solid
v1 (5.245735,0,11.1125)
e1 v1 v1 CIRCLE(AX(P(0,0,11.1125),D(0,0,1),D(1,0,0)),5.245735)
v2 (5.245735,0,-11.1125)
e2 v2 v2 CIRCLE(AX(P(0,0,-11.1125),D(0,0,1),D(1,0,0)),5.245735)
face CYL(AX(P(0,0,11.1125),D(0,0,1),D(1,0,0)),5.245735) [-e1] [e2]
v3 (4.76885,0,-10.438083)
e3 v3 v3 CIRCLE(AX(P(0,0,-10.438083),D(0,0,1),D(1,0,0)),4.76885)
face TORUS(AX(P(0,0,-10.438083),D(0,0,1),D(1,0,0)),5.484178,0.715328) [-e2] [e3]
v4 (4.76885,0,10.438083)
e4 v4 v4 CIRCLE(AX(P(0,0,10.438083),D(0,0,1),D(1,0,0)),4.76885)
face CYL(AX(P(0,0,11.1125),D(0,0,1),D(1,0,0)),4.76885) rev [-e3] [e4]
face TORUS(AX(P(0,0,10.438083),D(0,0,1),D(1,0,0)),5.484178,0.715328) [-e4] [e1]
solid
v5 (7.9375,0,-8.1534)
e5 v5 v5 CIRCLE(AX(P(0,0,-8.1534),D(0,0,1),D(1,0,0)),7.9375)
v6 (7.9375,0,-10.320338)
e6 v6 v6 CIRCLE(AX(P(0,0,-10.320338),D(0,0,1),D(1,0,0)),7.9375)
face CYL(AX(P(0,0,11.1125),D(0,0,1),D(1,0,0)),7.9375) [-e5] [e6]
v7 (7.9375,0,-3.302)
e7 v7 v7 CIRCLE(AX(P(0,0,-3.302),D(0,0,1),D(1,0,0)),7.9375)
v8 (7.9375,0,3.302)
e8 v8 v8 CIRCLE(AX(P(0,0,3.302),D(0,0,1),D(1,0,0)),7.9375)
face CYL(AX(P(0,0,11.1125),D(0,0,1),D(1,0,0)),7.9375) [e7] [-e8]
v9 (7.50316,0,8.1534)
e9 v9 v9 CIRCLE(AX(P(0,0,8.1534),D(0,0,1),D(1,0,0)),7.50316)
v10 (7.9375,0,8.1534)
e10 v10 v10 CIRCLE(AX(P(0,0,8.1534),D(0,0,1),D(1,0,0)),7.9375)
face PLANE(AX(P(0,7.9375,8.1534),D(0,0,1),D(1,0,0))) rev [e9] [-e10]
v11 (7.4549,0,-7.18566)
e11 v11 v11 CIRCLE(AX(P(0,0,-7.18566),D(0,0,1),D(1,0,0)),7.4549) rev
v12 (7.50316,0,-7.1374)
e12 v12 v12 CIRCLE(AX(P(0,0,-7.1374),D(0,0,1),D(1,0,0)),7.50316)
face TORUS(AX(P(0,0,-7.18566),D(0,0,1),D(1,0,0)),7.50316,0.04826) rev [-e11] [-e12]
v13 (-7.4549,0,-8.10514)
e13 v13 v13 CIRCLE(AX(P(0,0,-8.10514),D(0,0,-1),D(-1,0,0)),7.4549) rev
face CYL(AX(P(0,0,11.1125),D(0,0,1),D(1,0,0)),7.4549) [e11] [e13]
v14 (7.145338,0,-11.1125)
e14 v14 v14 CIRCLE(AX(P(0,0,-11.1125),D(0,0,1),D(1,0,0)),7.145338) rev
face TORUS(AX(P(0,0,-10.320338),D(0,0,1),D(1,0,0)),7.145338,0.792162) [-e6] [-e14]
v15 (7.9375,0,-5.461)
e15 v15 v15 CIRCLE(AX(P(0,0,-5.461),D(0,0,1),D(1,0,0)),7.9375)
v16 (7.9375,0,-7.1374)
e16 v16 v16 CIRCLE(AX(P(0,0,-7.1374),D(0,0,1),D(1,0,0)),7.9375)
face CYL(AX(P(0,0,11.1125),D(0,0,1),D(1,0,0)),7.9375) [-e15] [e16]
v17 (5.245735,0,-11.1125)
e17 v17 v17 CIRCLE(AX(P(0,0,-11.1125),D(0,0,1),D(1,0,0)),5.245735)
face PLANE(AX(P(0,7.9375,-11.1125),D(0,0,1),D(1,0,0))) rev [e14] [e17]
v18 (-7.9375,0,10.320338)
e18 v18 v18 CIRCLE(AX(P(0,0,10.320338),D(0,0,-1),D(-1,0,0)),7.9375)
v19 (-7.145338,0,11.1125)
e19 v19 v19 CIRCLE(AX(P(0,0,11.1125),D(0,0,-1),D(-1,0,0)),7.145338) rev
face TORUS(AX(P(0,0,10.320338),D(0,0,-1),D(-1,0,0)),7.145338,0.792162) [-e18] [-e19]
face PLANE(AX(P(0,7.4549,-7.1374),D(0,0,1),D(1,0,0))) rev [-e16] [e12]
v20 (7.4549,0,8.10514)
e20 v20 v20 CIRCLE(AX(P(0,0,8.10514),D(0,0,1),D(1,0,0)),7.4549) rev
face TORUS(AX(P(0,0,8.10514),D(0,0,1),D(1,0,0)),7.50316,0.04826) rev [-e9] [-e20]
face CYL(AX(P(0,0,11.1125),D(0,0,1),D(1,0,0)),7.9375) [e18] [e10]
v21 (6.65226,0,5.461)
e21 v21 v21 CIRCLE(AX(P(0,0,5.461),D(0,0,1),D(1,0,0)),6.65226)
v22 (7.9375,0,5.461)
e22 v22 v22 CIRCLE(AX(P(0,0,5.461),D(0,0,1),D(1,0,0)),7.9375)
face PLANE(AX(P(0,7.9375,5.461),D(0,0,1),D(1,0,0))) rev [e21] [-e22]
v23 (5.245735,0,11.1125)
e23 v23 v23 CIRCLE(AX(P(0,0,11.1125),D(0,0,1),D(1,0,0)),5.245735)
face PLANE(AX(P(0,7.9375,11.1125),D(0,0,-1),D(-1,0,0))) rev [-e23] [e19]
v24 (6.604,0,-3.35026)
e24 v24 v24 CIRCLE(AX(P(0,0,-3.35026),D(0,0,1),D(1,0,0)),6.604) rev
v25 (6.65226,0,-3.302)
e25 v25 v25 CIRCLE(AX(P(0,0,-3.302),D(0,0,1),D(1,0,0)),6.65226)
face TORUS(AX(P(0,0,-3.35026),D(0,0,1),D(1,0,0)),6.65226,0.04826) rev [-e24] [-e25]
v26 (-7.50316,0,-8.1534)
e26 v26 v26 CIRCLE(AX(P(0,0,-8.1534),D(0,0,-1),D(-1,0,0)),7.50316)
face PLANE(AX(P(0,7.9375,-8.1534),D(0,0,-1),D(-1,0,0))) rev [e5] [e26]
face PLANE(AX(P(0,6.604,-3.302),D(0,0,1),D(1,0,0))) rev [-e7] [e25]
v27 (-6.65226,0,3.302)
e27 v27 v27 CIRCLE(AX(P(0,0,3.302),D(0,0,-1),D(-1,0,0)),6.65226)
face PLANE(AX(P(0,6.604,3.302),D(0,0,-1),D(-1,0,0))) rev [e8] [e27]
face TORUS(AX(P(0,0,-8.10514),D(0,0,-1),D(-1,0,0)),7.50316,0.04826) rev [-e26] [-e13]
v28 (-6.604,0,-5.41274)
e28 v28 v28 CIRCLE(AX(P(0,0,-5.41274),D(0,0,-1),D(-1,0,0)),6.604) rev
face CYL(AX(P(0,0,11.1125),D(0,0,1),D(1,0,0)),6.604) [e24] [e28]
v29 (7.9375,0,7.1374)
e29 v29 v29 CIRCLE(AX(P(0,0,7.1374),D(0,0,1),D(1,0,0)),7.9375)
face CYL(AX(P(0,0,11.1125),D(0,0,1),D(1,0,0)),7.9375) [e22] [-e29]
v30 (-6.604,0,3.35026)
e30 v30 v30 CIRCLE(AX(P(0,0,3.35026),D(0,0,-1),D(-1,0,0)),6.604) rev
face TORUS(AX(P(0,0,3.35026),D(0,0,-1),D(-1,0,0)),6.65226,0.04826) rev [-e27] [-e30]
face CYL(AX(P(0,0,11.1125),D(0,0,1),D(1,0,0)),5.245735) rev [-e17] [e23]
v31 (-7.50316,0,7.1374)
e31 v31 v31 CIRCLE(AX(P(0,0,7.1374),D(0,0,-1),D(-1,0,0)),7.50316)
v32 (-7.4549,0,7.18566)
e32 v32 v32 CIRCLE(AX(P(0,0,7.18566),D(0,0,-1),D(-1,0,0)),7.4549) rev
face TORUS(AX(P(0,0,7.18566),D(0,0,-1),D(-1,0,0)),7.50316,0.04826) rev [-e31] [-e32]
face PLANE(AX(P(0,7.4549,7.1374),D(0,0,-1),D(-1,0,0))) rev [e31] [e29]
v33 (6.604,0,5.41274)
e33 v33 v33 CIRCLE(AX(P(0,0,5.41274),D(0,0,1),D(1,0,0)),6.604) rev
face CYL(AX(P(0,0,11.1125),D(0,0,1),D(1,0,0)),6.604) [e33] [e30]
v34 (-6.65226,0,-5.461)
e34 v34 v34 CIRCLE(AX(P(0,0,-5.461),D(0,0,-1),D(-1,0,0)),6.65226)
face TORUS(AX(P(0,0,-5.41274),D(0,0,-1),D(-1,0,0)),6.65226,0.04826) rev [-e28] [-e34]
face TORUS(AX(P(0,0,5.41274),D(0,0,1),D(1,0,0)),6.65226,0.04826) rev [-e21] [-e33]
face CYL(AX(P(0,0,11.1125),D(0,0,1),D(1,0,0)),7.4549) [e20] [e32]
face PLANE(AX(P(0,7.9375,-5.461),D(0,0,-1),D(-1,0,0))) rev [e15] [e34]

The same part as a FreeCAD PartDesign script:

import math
import FreeCAD as App
import Part
import Sketcher
from FreeCAD import Vector
Q = App.Units.Quantity


def edges_at(feature, points):
    """Names of the edges that pass closest to the given points."""
    edges = feature.Shape.Edges
    near = lambda p: min(range(len(edges)), key=lambda i: edges[i].distToShape(Part.Vertex(*p))[0])
    return sorted({f"Edge{near(p) + 1}" for p in points})


def add_polygon(sketch, points):
    """Adds a closed chain of lines whose ends are joined by coincident constraints."""
    first, n = sketch.GeometryCount, len(points)
    for a, b in zip(points, points[1:] + points[:1]):
        sketch.addGeometry(Part.LineSegment(App.Vector(*a, 0), App.Vector(*b, 0)), False)
    for i in range(n):
        sketch.addConstraint(Sketcher.Constraint("Coincident", first + i, 2, first + (i + 1) % n, 1))

doc = App.newDocument("Part")
body = doc.addObject("PartDesign::Body", "Body")

# Sketch on YZ plane
sketch1 = body.newObject("Sketcher::SketchObject", "Sketch")
sketch1.AttachmentSupport = (doc.getObject("YZ_Plane"), [""])
sketch1.MapMode = "FlatFace"
add_polygon(sketch1, [(7.94, 8.15), (7.94, 11.11), (5.25, 11.11), (5.25, -11.11), (7.94, -11.11), (7.94, -8.15), (7.45, -8.15), (7.45, -7.14), (7.94, -7.14), (7.94, -5.46), (6.6, -5.46), (6.6, -3.3), (7.94, -3.3), (7.94, 3.3), (6.6, 3.3), (6.6, 5.46), (7.94, 5.46), (7.94, 7.14), (7.45, 7.14), (7.45, 8.15)])  # lines 0-19
sketch1.addConstraint([
    Sketcher.Constraint("Vertical", 0),
    Sketcher.Constraint("Horizontal", 1),
    Sketcher.Constraint("Vertical", 2),
    Sketcher.Constraint("Horizontal", 3),
    Sketcher.Constraint("Vertical", 4),
    Sketcher.Constraint("Horizontal", 5),
    Sketcher.Constraint("Vertical", 6),
    Sketcher.Constraint("Horizontal", 7),
    Sketcher.Constraint("Vertical", 8),
    Sketcher.Constraint("Horizontal", 9),
    Sketcher.Constraint("Vertical", 10),
    Sketcher.Constraint("Horizontal", 11),
    Sketcher.Constraint("Vertical", 12),
    Sketcher.Constraint("Horizontal", 13),
    Sketcher.Constraint("Vertical", 14),
    Sketcher.Constraint("Horizontal", 15),
    Sketcher.Constraint("Vertical", 16),
    Sketcher.Constraint("Horizontal", 17),
    Sketcher.Constraint("Vertical", 18),
    Sketcher.Constraint("Horizontal", 19),
    Sketcher.Constraint("Symmetric", 0, 2, 3, 2, -1),
    Sketcher.Constraint("Symmetric", 10, 2, 13, 2, -1),
    Sketcher.Constraint("Symmetric", 8, 2, 15, 2, -1),
    Sketcher.Constraint("Symmetric", 6, 2, 17, 2, -1),
    Sketcher.Constraint("Vertical", 4, 2, 7, 2),
    Sketcher.Constraint("Vertical", 8, 2, 11, 2),
    Sketcher.Constraint("Equal", 0, 4),
    Sketcher.Constraint("DistanceY", 6, 1, 6, 2, Q("0.04 in")),
    Sketcher.Constraint("DistanceY", 12, 1, 12, 2, Q("0.26 in")),
    Sketcher.Constraint("DistanceX", 5, 2, 5, 1, Q("0.019 in")),
    Sketcher.Constraint("DistanceY", 2, 2, 2, 1, Q("0.875 in")),
    Sketcher.Constraint("DistanceY", 8, 1, 8, 2, Q("0.066 in")),
    Sketcher.Constraint("DistanceY", 10, 1, 10, 2, Q("0.085 in")),
    Sketcher.Constraint("DistanceX", -1, 1, 9, 2, Q("0.26 in")),
    Sketcher.Constraint("DistanceX", 9, 2, 9, 1, Q("0.0525 in")),
    Sketcher.Constraint("DistanceX", 1, 2, 1, 1, 2.691765),
])
revolution = body.newObject("PartDesign::Revolution", "Revolution")
revolution.Profile = sketch1
revolution.ReferenceAxis = (sketch1, ["V_Axis"])
revolution.Angle = 360
doc.recompute()

fillet = body.newObject("PartDesign::Fillet", "Fillet")
fillet.Base = (revolution, edges_at(revolution, [(0, -7.938, 11.113), (0, -7.938, -11.113)]))
fillet.Radius = 0.792162
doc.recompute()

fillet2 = body.newObject("PartDesign::Fillet", "Fillet001")
fillet2.Base = (fillet, edges_at(fillet, [
    (0, -7.455, 8.153),
    (0, -7.455, 7.137),
    (0, -6.604, 5.461),
    (0, -6.604, 3.302),
    (0, -6.604, -3.302),
    (0, -6.604, -5.461),
    (0, -7.455, -7.137),
    (0, -7.455, -8.153),
]))
fillet2.Radius = Q("0.0019 in")
body2 = doc.addObject("PartDesign::Body", "Body001")

# Sketch on YZ plane
sketch2 = body2.newObject("Sketcher::SketchObject", "Sketch001")
sketch2.AttachmentSupport = (doc.getObject("YZ_Plane001"), [""])
sketch2.MapMode = "FlatFace"
sketch2.addGeometry([
    Part.LineSegment(Vector(4.8, 10.4, 0), Vector(4.8, -10.4, 0)),
    Part.ArcOfCircle(Part.Circle(Vector(5.5, -10.4, 0), Vector(0, 0, 1), 0.7), math.radians(180), math.radians(251)),
    Part.LineSegment(Vector(5.2, -11.1, 0), Vector(5.2, 11.1, 0)),
    Part.ArcOfCircle(Part.Circle(Vector(5.5, 10.4, 0), Vector(0, 0, 1), 0.7), math.radians(109), math.radians(180)),
], False)
sketch2.addConstraint([
    Sketcher.Constraint("Tangent", 0, 2, 1, 1),
    Sketcher.Constraint("Coincident", 1, 2, 2, 1),
    Sketcher.Constraint("Coincident", 2, 2, 3, 1),
    Sketcher.Constraint("Tangent", 3, 2, 0, 1),
    Sketcher.Constraint("Vertical", 0),
    Sketcher.Constraint("Vertical", 2),
    Sketcher.Constraint("Equal", 1, 3),
    Sketcher.Constraint("DistanceY", 2, 1, 2, 2, Q("0.875 in")),
    Sketcher.Constraint("DistanceY", 1, 2, -1, 1, Q("0.4375 in")),
    Sketcher.Constraint("Radius", 1, 0.715328),
    Sketcher.Constraint("DistanceY", 0, 2, 0, 1, 20.876166),
    Sketcher.Constraint("DistanceX", -1, 1, 0, 2, 4.76885),
])
revolution2 = body2.newObject("PartDesign::Revolution", "Revolution001")
revolution2.Profile = sketch2
revolution2.ReferenceAxis = (sketch2, ["V_Axis"])
revolution2.Angle = 360

doc.recompute()
